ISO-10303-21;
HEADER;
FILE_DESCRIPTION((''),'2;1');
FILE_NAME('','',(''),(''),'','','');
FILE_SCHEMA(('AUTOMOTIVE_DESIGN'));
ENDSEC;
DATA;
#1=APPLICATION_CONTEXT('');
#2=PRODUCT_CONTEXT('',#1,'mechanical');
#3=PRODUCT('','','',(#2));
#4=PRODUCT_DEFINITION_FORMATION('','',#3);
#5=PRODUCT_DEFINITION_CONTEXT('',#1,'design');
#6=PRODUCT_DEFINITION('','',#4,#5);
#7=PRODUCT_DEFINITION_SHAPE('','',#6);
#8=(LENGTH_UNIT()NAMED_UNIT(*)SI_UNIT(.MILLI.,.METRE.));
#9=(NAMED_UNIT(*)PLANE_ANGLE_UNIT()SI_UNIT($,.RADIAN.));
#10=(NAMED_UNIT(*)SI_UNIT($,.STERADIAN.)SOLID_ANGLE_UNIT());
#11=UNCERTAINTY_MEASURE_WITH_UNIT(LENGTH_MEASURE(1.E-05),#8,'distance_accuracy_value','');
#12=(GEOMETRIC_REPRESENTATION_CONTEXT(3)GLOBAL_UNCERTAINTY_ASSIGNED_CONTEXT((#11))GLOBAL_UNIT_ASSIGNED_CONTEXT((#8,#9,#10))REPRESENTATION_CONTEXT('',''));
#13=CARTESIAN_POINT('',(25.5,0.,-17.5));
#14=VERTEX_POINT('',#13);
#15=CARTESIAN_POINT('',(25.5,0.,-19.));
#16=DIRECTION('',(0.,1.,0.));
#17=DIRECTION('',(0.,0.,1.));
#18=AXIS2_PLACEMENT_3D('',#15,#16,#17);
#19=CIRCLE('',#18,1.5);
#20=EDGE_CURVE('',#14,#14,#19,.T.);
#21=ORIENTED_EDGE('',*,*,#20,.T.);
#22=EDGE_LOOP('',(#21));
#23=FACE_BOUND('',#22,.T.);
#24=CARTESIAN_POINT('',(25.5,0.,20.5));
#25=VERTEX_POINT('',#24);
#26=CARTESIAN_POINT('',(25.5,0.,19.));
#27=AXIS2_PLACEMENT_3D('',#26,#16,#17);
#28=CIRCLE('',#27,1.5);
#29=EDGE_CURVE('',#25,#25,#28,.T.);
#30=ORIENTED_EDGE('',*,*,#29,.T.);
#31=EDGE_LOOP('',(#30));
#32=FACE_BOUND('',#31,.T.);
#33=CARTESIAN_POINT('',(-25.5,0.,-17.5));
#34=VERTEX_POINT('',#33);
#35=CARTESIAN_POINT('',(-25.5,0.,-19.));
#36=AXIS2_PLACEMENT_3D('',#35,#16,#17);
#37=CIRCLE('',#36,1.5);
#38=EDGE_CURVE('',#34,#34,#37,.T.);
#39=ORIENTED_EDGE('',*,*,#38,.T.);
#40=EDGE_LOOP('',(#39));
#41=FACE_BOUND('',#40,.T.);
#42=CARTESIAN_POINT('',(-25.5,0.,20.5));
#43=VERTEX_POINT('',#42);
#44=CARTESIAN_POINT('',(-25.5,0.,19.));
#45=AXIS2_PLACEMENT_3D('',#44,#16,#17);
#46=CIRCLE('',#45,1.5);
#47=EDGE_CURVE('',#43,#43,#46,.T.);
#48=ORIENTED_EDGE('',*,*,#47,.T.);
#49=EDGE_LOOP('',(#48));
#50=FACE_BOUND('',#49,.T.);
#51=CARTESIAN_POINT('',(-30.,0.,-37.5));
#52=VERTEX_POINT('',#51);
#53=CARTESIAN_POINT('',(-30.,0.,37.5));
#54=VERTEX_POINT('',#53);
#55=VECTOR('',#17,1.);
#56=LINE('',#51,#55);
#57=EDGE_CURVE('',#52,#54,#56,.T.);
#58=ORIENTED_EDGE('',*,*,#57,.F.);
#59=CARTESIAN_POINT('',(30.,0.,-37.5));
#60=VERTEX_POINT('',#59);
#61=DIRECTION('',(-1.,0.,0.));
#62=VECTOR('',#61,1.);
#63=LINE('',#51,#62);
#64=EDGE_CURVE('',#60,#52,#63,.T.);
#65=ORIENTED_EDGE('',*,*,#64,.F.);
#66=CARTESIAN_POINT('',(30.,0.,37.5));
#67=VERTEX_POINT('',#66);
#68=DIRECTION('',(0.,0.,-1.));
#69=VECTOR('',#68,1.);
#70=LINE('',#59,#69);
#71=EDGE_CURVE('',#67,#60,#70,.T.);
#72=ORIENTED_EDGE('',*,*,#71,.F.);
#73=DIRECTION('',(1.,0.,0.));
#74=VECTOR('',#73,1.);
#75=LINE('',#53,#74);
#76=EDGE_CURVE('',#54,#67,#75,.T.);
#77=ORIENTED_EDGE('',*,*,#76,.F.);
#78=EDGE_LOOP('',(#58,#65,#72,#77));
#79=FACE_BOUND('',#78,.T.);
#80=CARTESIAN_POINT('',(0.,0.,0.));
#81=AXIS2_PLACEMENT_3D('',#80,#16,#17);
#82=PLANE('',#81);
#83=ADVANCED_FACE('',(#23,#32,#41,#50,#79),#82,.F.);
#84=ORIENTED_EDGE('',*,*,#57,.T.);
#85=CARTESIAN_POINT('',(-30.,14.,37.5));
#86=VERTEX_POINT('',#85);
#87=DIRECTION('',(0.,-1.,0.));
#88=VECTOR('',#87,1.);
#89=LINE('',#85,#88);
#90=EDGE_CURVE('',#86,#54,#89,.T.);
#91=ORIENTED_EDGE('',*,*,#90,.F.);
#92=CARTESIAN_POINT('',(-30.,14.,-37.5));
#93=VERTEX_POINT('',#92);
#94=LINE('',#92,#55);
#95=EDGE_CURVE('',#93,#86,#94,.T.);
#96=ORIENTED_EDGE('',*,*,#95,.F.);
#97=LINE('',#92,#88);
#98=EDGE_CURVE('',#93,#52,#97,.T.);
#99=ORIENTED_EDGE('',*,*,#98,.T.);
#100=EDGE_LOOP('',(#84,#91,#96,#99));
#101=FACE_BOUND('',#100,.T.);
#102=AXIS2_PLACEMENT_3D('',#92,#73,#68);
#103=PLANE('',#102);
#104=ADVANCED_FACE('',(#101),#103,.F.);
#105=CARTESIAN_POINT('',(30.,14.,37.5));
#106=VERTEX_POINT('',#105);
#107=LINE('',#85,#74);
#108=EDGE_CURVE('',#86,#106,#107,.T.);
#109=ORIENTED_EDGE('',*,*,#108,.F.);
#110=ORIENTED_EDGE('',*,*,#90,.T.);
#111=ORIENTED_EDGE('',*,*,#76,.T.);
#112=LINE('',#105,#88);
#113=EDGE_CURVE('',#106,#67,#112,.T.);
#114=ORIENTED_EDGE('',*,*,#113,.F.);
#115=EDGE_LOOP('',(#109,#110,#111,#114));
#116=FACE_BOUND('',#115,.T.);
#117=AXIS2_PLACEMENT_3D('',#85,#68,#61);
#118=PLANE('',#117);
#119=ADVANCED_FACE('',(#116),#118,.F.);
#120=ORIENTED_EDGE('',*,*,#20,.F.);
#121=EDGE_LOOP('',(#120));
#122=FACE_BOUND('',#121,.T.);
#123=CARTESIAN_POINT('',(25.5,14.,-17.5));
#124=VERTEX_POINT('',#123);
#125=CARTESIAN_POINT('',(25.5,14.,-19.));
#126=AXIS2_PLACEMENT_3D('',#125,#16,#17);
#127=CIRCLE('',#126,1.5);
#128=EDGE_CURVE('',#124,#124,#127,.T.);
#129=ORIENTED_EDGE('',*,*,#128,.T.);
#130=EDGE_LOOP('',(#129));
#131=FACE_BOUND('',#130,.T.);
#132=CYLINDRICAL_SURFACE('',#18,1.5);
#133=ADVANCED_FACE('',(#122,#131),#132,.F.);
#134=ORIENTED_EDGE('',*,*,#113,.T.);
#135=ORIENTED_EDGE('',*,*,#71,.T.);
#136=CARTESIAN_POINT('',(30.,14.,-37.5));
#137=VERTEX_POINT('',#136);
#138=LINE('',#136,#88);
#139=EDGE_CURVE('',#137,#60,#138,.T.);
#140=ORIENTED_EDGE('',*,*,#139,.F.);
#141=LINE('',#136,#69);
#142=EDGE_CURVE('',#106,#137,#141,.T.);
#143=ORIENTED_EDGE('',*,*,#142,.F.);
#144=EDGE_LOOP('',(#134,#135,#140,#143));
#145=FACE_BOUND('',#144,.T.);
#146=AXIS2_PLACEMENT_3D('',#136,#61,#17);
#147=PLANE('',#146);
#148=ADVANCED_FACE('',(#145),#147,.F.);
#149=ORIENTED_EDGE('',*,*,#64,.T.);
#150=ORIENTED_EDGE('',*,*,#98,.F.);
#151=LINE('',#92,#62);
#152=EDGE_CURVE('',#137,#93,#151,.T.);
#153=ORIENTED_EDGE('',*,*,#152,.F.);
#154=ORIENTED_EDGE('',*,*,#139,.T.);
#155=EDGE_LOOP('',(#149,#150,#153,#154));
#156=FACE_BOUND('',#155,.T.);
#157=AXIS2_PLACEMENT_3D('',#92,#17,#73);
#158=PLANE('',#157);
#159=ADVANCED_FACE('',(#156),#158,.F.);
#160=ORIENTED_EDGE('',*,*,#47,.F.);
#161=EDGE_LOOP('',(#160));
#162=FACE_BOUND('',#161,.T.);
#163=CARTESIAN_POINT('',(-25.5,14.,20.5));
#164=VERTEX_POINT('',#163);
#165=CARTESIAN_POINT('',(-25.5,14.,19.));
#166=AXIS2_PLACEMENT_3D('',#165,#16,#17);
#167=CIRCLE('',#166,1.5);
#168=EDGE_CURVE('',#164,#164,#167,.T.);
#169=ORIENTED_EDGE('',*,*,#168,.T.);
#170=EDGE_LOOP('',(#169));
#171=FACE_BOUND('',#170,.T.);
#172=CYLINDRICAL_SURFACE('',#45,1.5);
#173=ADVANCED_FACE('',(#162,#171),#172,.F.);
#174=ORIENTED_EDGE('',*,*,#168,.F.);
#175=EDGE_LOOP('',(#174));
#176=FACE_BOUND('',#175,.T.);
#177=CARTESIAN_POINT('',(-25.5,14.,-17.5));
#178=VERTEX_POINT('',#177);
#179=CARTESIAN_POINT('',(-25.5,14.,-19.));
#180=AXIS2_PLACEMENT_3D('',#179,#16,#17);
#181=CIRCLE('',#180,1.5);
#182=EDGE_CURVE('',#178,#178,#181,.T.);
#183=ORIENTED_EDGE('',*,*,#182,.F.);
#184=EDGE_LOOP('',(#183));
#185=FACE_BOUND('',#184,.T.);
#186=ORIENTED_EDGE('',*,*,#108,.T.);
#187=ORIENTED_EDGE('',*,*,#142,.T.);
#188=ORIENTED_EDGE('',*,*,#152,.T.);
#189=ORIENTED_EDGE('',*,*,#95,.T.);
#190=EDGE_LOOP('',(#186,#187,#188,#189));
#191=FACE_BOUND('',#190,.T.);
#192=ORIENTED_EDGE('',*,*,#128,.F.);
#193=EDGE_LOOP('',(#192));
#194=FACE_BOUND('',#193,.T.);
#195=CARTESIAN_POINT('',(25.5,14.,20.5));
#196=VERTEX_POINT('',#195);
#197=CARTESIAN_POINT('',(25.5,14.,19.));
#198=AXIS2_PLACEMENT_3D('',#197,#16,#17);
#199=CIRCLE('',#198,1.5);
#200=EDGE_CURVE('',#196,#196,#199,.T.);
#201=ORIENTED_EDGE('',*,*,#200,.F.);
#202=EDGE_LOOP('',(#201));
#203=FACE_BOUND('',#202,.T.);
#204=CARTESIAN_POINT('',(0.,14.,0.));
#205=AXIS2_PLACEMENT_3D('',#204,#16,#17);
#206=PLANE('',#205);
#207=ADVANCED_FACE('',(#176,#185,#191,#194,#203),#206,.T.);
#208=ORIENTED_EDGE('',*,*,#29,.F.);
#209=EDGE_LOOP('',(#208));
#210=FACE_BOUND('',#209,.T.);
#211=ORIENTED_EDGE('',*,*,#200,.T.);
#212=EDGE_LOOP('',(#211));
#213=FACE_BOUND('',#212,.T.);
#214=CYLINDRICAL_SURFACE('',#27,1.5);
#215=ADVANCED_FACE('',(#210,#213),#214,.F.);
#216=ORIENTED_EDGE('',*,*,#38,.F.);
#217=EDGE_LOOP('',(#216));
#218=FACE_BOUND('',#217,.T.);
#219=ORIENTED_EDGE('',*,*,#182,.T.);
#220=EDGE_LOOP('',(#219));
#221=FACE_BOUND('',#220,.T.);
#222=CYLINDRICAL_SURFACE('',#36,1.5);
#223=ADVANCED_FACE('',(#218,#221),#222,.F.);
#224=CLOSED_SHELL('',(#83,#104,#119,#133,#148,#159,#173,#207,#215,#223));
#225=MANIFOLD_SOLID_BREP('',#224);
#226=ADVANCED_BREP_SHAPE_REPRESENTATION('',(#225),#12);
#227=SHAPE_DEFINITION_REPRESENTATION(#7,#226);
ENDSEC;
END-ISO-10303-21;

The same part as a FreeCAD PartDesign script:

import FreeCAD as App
import Part
import Sketcher
from FreeCAD import Vector
Q = App.Units.Quantity

doc = App.newDocument("Part")
body = doc.addObject("PartDesign::Body", "Body")

sketch1 = body.newObject("Sketcher::SketchObject", "Sketch")
sketch1.AttachmentSupport = (doc.getObject("XZ_Plane"), [""])
sketch1.MapMode = "FlatFace"
sketch1.addGeometry([
    Part.LineSegment(Vector(-30, -38, 0), Vector(-30, 38, 0)),
    Part.LineSegment(Vector(-30, 38, 0), Vector(30, 38, 0)),
    Part.LineSegment(Vector(30, 38, 0), Vector(30, -38, 0)),
    Part.LineSegment(Vector(30, -38, 0), Vector(-30, -38, 0)),
], False)
sketch1.addConstraint([
    Sketcher.Constraint("Coincident", 0, 2, 1, 1),
    Sketcher.Constraint("Coincident", 1, 2, 2, 1),
    Sketcher.Constraint("Coincident", 2, 2, 3, 1),
    Sketcher.Constraint("Coincident", 3, 2, 0, 1),
    Sketcher.Constraint("Vertical", 0),
    Sketcher.Constraint("Horizontal", 1),
    Sketcher.Constraint("Vertical", 2),
    Sketcher.Constraint("Horizontal", 3),
    Sketcher.Constraint("Symmetric", 0, 2, 2, 2, -1, 1),
    Sketcher.Constraint("DistanceX", 1, 1, 1, 2, Q("60 mm")),
    Sketcher.Constraint("DistanceY", 0, 1, 0, 2, Q("75 mm")),
])
pad1 = body.newObject("PartDesign::Pad", "Pad")
pad1.Profile = sketch1
pad1.Length = 14
pad1.Reversed = True

sketch2 = body.newObject("Sketcher::SketchObject", "Sketch001")
sketch2.AttachmentSupport = (doc.getObject("XZ_Plane"), [""])
sketch2.MapMode = "FlatFace"
sketch2.AttachmentOffset = App.Placement(Vector(0, 0, -14), App.Rotation())
sketch2.addGeometry([
    Part.Circle(Vector(-25.5, -19, 0), Vector(0, 0, 1), 1.5),
    Part.Circle(Vector(25.5, -19, 0), Vector(0, 0, 1), 1.5),
    Part.Circle(Vector(25.5, 19, 0), Vector(0, 0, 1), 1.5),
    Part.Circle(Vector(-25.5, 19, 0), Vector(0, 0, 1), 1.5),
], False)
sketch2.addConstraint([
    Sketcher.Constraint("Equal", 0, 1),
    Sketcher.Constraint("Equal", 1, 2),
    Sketcher.Constraint("Equal", 2, 3),
    Sketcher.Constraint("Symmetric", 0, 3, 2, 3, -1, 1),
    Sketcher.Constraint("Symmetric", 1, 3, 3, 3, -1, 1),
    Sketcher.Constraint("Symmetric", 0, 3, 1, 3, -2),
    Sketcher.Constraint("Diameter", 0, Q("3 mm")),
    Sketcher.Constraint("DistanceY", 0, 3, -1, 1, Q("19 mm")),
    Sketcher.Constraint("DistanceX", 0, 3, 1, 3, Q("51 mm")),
])
pocket1 = body.newObject("PartDesign::Pocket", "Pocket")
pocket1.Profile = sketch2
pocket1.Length = 14
pocket1.Reversed = True

doc.recompute()
